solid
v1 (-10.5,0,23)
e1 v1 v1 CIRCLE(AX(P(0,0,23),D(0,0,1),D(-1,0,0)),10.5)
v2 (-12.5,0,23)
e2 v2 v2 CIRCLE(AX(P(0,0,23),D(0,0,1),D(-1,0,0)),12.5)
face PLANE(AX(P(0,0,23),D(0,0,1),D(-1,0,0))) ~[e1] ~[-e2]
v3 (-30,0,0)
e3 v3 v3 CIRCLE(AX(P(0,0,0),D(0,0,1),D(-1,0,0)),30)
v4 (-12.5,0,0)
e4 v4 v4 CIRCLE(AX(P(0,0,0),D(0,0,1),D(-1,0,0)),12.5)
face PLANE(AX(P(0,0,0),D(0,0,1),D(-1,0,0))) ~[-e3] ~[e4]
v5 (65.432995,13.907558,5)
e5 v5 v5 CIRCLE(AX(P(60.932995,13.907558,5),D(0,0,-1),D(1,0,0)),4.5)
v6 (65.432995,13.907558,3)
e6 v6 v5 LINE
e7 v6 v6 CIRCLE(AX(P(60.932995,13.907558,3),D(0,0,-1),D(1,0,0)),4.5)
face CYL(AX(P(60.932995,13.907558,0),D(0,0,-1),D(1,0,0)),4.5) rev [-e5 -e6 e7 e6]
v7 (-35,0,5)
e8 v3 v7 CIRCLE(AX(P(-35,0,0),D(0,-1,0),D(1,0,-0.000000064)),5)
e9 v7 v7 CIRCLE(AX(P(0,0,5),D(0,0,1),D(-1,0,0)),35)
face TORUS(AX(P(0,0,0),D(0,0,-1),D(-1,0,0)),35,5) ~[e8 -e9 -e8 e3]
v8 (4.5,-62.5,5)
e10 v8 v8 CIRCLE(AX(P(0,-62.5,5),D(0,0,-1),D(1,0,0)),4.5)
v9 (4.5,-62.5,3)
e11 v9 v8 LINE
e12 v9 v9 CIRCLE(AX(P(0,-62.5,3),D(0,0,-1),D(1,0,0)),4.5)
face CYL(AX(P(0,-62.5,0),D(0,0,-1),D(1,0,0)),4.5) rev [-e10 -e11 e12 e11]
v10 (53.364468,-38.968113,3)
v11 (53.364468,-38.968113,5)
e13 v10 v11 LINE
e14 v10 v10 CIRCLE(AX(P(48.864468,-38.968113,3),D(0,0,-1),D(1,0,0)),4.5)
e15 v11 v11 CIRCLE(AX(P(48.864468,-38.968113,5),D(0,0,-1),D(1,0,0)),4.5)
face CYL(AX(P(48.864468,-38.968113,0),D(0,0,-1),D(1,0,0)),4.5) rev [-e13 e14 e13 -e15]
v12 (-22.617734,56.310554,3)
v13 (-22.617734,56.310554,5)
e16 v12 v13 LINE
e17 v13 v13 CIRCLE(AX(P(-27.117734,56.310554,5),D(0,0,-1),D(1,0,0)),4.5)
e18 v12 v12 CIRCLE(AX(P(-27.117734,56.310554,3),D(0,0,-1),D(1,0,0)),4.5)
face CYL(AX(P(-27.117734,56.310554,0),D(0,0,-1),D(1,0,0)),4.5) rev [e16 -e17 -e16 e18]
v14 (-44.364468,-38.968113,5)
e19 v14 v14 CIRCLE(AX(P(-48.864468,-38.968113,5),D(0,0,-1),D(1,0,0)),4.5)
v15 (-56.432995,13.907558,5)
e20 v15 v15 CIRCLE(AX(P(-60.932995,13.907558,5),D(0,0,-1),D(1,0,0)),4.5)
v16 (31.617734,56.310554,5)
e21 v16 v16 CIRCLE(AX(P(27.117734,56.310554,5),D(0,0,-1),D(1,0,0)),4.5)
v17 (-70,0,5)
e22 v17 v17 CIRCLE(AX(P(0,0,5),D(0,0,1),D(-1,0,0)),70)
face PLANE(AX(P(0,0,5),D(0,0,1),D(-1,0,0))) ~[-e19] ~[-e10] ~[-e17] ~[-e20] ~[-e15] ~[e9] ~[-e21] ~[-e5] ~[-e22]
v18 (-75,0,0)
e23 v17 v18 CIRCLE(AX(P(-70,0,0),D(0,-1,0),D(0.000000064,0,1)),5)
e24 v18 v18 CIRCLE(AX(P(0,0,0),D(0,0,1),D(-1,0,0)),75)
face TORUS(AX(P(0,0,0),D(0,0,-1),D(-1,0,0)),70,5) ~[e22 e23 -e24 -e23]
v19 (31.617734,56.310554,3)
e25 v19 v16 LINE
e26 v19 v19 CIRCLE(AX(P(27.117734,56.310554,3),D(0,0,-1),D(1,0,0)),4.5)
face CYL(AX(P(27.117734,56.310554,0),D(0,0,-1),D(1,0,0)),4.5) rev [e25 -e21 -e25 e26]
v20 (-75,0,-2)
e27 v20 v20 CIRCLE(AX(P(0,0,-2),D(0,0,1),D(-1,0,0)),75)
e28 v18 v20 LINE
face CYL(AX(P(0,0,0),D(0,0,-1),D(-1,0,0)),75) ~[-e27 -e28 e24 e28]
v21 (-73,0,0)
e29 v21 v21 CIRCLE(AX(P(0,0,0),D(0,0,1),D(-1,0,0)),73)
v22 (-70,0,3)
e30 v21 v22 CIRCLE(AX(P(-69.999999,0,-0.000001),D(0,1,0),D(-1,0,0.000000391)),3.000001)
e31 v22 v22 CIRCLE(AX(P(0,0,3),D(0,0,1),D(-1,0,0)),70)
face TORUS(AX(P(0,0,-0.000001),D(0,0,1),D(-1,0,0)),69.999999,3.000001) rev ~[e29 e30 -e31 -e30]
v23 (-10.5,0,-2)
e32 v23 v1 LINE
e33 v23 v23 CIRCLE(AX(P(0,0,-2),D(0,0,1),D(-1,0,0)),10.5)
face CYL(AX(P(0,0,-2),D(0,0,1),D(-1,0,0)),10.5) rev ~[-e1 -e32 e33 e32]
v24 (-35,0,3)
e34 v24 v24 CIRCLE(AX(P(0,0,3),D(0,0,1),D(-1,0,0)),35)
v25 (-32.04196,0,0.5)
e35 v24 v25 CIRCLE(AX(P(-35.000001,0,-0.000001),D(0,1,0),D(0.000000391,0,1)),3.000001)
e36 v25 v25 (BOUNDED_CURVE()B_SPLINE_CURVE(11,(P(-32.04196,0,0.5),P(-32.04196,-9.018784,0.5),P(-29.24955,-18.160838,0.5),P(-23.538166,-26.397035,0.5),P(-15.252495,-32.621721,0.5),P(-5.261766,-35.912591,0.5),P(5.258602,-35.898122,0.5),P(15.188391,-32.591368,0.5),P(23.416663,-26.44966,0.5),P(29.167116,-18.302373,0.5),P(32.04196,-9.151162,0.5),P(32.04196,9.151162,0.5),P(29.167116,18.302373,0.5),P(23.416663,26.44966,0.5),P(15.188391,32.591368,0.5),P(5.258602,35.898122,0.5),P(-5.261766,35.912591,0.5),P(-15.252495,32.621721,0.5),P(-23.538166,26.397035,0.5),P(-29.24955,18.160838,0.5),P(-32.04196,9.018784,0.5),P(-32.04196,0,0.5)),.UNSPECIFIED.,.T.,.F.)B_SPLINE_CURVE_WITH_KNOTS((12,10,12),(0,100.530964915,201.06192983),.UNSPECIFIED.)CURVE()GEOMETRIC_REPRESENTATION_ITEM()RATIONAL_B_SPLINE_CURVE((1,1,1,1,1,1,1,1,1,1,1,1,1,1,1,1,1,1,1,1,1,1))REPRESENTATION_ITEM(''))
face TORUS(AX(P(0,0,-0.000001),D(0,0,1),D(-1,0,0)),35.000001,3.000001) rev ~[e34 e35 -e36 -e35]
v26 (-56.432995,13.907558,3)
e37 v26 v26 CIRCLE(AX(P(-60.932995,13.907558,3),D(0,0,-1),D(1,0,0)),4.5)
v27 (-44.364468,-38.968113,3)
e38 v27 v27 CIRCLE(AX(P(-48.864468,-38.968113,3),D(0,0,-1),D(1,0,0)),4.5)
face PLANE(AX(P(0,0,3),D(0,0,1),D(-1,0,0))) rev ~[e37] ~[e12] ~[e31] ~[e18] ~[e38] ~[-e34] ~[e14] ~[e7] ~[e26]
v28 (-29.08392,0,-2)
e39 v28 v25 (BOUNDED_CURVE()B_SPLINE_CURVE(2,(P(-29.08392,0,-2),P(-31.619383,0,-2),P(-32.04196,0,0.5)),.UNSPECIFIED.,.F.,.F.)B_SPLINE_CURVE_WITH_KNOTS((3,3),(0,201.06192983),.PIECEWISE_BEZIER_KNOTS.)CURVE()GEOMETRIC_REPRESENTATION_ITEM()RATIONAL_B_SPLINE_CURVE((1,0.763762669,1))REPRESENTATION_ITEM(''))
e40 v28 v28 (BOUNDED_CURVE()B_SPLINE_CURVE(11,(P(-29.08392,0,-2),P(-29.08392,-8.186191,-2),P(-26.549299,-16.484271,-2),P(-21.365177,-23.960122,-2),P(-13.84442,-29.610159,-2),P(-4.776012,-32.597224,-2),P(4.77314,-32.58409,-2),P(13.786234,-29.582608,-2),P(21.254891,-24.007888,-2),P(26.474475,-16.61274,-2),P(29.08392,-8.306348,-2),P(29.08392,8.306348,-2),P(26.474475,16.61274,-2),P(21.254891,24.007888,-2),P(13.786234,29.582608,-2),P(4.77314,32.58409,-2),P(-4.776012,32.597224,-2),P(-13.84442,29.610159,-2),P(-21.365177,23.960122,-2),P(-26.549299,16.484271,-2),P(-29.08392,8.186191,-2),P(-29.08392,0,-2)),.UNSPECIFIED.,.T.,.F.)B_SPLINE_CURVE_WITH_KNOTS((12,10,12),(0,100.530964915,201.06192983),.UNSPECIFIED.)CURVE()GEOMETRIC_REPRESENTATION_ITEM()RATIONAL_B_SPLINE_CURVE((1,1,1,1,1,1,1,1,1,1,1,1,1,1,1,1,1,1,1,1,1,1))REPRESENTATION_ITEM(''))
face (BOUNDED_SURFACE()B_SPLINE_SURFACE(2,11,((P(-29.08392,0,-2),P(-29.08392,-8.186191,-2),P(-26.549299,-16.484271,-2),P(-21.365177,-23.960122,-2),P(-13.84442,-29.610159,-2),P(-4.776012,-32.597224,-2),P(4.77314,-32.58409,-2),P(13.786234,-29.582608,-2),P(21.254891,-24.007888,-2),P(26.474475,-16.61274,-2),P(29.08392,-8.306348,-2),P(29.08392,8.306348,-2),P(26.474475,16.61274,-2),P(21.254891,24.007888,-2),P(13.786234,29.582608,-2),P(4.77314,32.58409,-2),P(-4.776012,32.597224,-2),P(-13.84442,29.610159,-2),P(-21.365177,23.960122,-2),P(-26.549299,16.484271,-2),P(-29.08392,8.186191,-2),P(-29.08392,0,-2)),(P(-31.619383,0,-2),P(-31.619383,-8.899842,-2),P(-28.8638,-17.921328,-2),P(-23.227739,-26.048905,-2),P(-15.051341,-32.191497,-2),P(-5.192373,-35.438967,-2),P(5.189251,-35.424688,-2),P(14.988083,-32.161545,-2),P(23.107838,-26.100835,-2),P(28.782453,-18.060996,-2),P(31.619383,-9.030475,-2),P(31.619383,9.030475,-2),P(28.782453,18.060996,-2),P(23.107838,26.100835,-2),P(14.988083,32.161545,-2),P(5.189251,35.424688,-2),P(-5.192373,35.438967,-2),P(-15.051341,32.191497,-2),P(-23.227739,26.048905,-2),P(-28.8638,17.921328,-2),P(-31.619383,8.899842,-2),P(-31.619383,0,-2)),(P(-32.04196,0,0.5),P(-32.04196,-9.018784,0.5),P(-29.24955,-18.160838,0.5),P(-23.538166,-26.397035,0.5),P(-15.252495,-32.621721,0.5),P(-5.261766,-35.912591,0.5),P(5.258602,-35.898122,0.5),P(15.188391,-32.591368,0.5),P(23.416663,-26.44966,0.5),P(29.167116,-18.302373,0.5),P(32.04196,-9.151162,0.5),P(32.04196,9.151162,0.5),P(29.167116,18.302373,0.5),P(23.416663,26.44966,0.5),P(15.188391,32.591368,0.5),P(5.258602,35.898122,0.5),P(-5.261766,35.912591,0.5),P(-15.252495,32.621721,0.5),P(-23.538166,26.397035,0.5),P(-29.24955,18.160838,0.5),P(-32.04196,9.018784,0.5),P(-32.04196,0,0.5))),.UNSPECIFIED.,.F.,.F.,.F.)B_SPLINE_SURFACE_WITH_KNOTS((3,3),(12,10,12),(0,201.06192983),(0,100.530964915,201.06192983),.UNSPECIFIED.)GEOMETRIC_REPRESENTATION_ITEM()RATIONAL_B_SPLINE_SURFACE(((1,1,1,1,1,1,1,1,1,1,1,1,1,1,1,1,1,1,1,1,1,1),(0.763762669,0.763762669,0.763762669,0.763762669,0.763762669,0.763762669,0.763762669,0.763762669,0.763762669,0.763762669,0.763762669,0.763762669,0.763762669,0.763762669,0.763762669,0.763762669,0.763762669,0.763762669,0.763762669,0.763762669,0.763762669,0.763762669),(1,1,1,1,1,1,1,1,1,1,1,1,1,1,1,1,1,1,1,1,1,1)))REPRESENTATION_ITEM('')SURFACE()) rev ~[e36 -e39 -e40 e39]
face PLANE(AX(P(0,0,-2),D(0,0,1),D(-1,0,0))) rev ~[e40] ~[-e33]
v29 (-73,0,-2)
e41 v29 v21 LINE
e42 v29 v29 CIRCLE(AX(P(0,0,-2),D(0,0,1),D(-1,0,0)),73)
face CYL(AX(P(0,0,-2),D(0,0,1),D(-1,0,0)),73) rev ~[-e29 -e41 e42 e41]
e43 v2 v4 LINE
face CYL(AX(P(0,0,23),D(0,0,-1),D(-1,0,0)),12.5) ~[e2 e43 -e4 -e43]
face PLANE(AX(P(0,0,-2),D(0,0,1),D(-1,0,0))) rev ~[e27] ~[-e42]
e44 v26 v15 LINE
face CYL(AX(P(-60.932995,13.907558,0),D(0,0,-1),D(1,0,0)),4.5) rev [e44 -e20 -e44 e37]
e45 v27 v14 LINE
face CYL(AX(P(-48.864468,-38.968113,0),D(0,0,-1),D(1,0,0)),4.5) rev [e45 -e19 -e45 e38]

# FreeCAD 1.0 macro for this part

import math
import FreeCAD as App
import Part
import Sketcher

V = App.Vector


def edges_at(feature, points):
    """Names of the edges that pass closest to the given points."""
    edges = feature.Shape.Edges
    near = lambda p: min(range(len(edges)), key=lambda i: edges[i].distToShape(Part.Vertex(*p))[0])
    return sorted({f"Edge{near(p) + 1}" for p in points})

doc = App.newDocument("Part")
body = doc.addObject("PartDesign::Body", "Body")

sketch1 = doc.addObject("Sketcher::SketchObject", "Sketch")
body.addObject(sketch1)
sketch1.AttachmentSupport = (doc.XZ_Plane, [""])
sketch1.MapMode = "FlatFace"
sketch1.addGeometry([
    Part.ArcOfCircle(Part.Circle(V(-35, 0, 0), V(0, 0, 1), 5), math.radians(0), math.radians(90)),
    Part.LineSegment(V(-35, 5, 0), V(-70, 5, 0)),
    Part.ArcOfCircle(Part.Circle(V(-70, 0, 0), V(0, 0, 1), 5), math.radians(90), math.radians(180)),
    Part.LineSegment(V(-75, 0, 0), V(-75, -2, 0)),
    Part.LineSegment(V(-75, -2, 0), V(-73, -2, 0)),
    Part.LineSegment(V(-73, -2, 0), V(-73, 0, 0)),
    Part.ArcOfCircle(Part.Circle(V(-70, 0, 0), V(0, 0, 1), 3), math.radians(90), math.radians(180)),
    Part.LineSegment(V(-70, 3, 0), V(-35, 3, 0)),
    Part.ArcOfCircle(Part.Circle(V(-35, 0, 0), V(0, 0, 1), 3), math.radians(0), math.radians(90)),
    Part.LineSegment(V(-32, 0, 0), V(-32, -2, 0)),
    Part.LineSegment(V(-32, -2, 0), V(-10.5, -2, 0)),
    Part.LineSegment(V(-10.5, -2, 0), V(-10.5, 23, 0)),
    Part.LineSegment(V(-10.5, 23, 0), V(-12.5, 23, 0)),
    Part.LineSegment(V(-12.5, 23, 0), V(-12.5, 0, 0)),
    Part.LineSegment(V(-12.5, 0, 0), V(-30, 0, 0)),
], False)
sketch1.addConstraint([
    Sketcher.Constraint("Tangent", 0, 2, 1, 1),
    Sketcher.Constraint("Tangent", 1, 2, 2, 1),
    Sketcher.Constraint("Tangent", 2, 2, 3, 1),
    Sketcher.Constraint("Coincident", 3, 2, 4, 1),
    Sketcher.Constraint("Coincident", 4, 2, 5, 1),
    Sketcher.Constraint("Tangent", 5, 2, 6, 2),
    Sketcher.Constraint("Tangent", 6, 1, 7, 1),
    Sketcher.Constraint("Tangent", 7, 2, 8, 2),
    Sketcher.Constraint("Tangent", 8, 1, 9, 1),
    Sketcher.Constraint("Coincident", 9, 2, 10, 1),
    Sketcher.Constraint("Coincident", 10, 2, 11, 1),
    Sketcher.Constraint("Coincident", 11, 2, 12, 1),
    Sketcher.Constraint("Coincident", 12, 2, 13, 1),
    Sketcher.Constraint("Coincident", 13, 2, 14, 1),
    Sketcher.Constraint("Coincident", 14, 2, 0, 1),
    Sketcher.Constraint("Horizontal", 1),
    Sketcher.Constraint("Vertical", 3),
    Sketcher.Constraint("Horizontal", 4),
    Sketcher.Constraint("Vertical", 5),
    Sketcher.Constraint("Horizontal", 7),
    Sketcher.Constraint("Vertical", 9),
    Sketcher.Constraint("Horizontal", 10),
    Sketcher.Constraint("Vertical", 11),
    Sketcher.Constraint("Horizontal", 12),
    Sketcher.Constraint("Vertical", 13),
    Sketcher.Constraint("Horizontal", 14),
    Sketcher.Constraint("Coincident", 6, 3, 2, 3),
    Sketcher.Constraint("Coincident", 8, 3, 0, 3),
    Sketcher.Constraint("Equal", 0, 2),
    Sketcher.Constraint("PointOnObject", 0, 3, -1),
    Sketcher.Constraint("PointOnObject", 13, 2, -1),
    Sketcher.Constraint("Horizontal", 4, 2, 9, 2),
    Sketcher.Constraint("Equal", 4, 12),
    Sketcher.Constraint("Equal", 12, 3),
    Sketcher.Constraint("Radius", 0, 5.0),
    Sketcher.Constraint("Radius", 6, 3.000001),
    Sketcher.Constraint("DistanceX", 1, 2, 1, 1, 35.0),
    Sketcher.Constraint("DistanceY", 11, 1, 11, 2, 25.0),
    Sketcher.Constraint("DistanceX", 10, 1, 10, 2, 21.5),
    Sketcher.Constraint("DistanceX", 0, 3, -1, 1, 35.0),
])
revolution = doc.addObject("PartDesign::Revolution", "Revolution")
body.addObject(revolution)
revolution.Profile = sketch1
revolution.ReferenceAxis = (sketch1, ["V_Axis"])
revolution.Angle = 360

sketch2 = doc.addObject("Sketcher::SketchObject", "Sketch001")
body.addObject(sketch2)
sketch2.AttachmentSupport = (doc.XY_Plane, [""])
sketch2.MapMode = "FlatFace"
sketch2.addGeometry([
    Part.Circle(V(0, -62.5, 0), V(0, 0, 1), 4.5),
    Part.Circle(V(48.9, -39, 0), V(0, 0, 1), 4.5),
    Part.Circle(V(60.9, 13.9, 0), V(0, 0, 1), 4.5),
    Part.Circle(V(27.1, 56.3, 0), V(0, 0, 1), 4.5),
    Part.Circle(V(-27.1, 56.3, 0), V(0, 0, 1), 4.5),
    Part.Circle(V(-60.9, 13.9, 0), V(0, 0, 1), 4.5),
    Part.Circle(V(-48.9, -39, 0), V(0, 0, 1), 4.5),
], False)
sketch2.addConstraint([
    Sketcher.Constraint("Equal", 0, 1),
    Sketcher.Constraint("Equal", 1, 2),
    Sketcher.Constraint("Equal", 2, 3),
    Sketcher.Constraint("Equal", 3, 4),
    Sketcher.Constraint("Equal", 4, 5),
    Sketcher.Constraint("Equal", 5, 6),
    Sketcher.Constraint("Symmetric", 3, 3, 4, 3, -2),
    Sketcher.Constraint("Symmetric", 2, 3, 5, 3, -2),
    Sketcher.Constraint("Symmetric", 1, 3, 6, 3, -2),
    Sketcher.Constraint("PointOnObject", 0, 3, -2),
    Sketcher.Constraint("Diameter", 0, 9.0),
    Sketcher.Constraint("DistanceY", 0, 3, -1, 1, 62.5),
    Sketcher.Constraint("DistanceX", 4, 3, 1, 3, 75.982202),
    Sketcher.Constraint("DistanceX", -1, 1, 1, 3, 48.864468),
    Sketcher.Constraint("DistanceY", 1, 3, 2, 3, 52.875671),
    Sketcher.Constraint("DistanceX", 3, 3, 2, 3, 33.815261),
    Sketcher.Constraint("DistanceY", 1, 3, -1, 1, 38.968113),
    Sketcher.Constraint("DistanceY", -1, 1, 3, 3, 56.310554),
])
pocket1 = doc.addObject("PartDesign::Pocket", "Pocket")
body.addObject(pocket1)
pocket1.Profile = sketch2
pocket1.Length = 25
pocket1.Reversed = True
doc.recompute()

fillet = doc.addObject("PartDesign::Fillet", "Fillet")
body.addObject(fillet)
fillet.Base = (pocket1, edges_at(pocket1, [(32, 0, -2)]))
fillet.Radius = 3

doc.recompute()
